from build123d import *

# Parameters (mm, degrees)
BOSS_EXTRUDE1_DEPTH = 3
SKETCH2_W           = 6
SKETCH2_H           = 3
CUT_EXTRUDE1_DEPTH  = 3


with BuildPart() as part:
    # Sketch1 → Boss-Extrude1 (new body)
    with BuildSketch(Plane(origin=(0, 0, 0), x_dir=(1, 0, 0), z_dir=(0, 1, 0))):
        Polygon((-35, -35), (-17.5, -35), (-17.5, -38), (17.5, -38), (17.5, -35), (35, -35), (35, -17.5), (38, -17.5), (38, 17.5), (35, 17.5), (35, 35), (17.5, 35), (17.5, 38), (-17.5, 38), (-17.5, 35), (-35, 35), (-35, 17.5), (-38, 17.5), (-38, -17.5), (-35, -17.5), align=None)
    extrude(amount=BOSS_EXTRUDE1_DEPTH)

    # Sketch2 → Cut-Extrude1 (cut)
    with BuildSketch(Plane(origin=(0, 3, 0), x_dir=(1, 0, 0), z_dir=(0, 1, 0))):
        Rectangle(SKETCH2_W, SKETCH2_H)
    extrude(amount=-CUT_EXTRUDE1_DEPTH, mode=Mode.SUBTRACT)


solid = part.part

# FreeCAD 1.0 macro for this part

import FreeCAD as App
import Part
import Sketcher
from FreeCAD import Vector

doc = App.newDocument("Part")
body = doc.addObject("PartDesign::Body", "Body")

# Sketch on XZ plane
sketch1 = body.newObject("Sketcher::SketchObject", "Sketch")
sketch1.AttachmentSupport = (doc.getObject("XZ_Plane"), [""])
sketch1.MapMode = "FlatFace"
sketch1.addGeometry(Part.LineSegment(Vector(-35, 35, 0), Vector(-17.5, 35, 0)), False)
sketch1.addGeometry(Part.LineSegment(Vector(-17.5, 35, 0), Vector(-17.5, 38, 0)), False)
sketch1.addGeometry(Part.LineSegment(Vector(-17.5, 38, 0), Vector(17.5, 38, 0)), False)
sketch1.addGeometry(Part.LineSegment(Vector(17.5, 38, 0), Vector(17.5, 35, 0)), False)
sketch1.addGeometry(Part.LineSegment(Vector(17.5, 35, 0), Vector(35, 35, 0)), False)
sketch1.addGeometry(Part.LineSegment(Vector(35, 35, 0), Vector(35, 17.5, 0)), False)
sketch1.addGeometry(Part.LineSegment(Vector(35, 17.5, 0), Vector(38, 17.5, 0)), False)
sketch1.addGeometry(Part.LineSegment(Vector(38, 17.5, 0), Vector(38, -17.5, 0)), False)
sketch1.addGeometry(Part.LineSegment(Vector(38, -17.5, 0), Vector(35, -17.5, 0)), False)
sketch1.addGeometry(Part.LineSegment(Vector(35, -17.5, 0), Vector(35, -35, 0)), False)
sketch1.addGeometry(Part.LineSegment(Vector(35, -35, 0), Vector(17.5, -35, 0)), False)
sketch1.addGeometry(Part.LineSegment(Vector(17.5, -35, 0), Vector(17.5, -38, 0)), False)
sketch1.addGeometry(Part.LineSegment(Vector(17.5, -38, 0), Vector(-17.5, -38, 0)), False)
sketch1.addGeometry(Part.LineSegment(Vector(-17.5, -38, 0), Vector(-17.5, -35, 0)), False)
sketch1.addGeometry(Part.LineSegment(Vector(-17.5, -35, 0), Vector(-35, -35, 0)), False)
sketch1.addGeometry(Part.LineSegment(Vector(-35, -35, 0), Vector(-35, -17.5, 0)), False)
sketch1.addGeometry(Part.LineSegment(Vector(-35, -17.5, 0), Vector(-38, -17.5, 0)), False)
sketch1.addGeometry(Part.LineSegment(Vector(-38, -17.5, 0), Vector(-38, 17.5, 0)), False)
sketch1.addGeometry(Part.LineSegment(Vector(-38, 17.5, 0), Vector(-35, 17.5, 0)), False)
sketch1.addGeometry(Part.LineSegment(Vector(-35, 17.5, 0), Vector(-35, 35, 0)), False)
sketch1.addConstraint(Sketcher.Constraint("Coincident", 0, 2, 1, 1))
sketch1.addConstraint(Sketcher.Constraint("Coincident", 1, 2, 2, 1))
sketch1.addConstraint(Sketcher.Constraint("Coincident", 2, 2, 3, 1))
sketch1.addConstraint(Sketcher.Constraint("Coincident", 3, 2, 4, 1))
sketch1.addConstraint(Sketcher.Constraint("Coincident", 4, 2, 5, 1))
sketch1.addConstraint(Sketcher.Constraint("Coincident", 5, 2, 6, 1))
sketch1.addConstraint(Sketcher.Constraint("Coincident", 6, 2, 7, 1))
sketch1.addConstraint(Sketcher.Constraint("Coincident", 7, 2, 8, 1))
sketch1.addConstraint(Sketcher.Constraint("Coincident", 8, 2, 9, 1))
sketch1.addConstraint(Sketcher.Constraint("Coincident", 9, 2, 10, 1))
sketch1.addConstraint(Sketcher.Constraint("Coincident", 10, 2, 11, 1))
sketch1.addConstraint(Sketcher.Constraint("Coincident", 11, 2, 12, 1))
sketch1.addConstraint(Sketcher.Constraint("Coincident", 12, 2, 13, 1))
sketch1.addConstraint(Sketcher.Constraint("Coincident", 13, 2, 14, 1))
sketch1.addConstraint(Sketcher.Constraint("Coincident", 14, 2, 15, 1))
sketch1.addConstraint(Sketcher.Constraint("Coincident", 15, 2, 16, 1))
sketch1.addConstraint(Sketcher.Constraint("Coincident", 16, 2, 17, 1))
sketch1.addConstraint(Sketcher.Constraint("Coincident", 17, 2, 18, 1))
sketch1.addConstraint(Sketcher.Constraint("Coincident", 18, 2, 19, 1))
sketch1.addConstraint(Sketcher.Constraint("Coincident", 19, 2, 0, 1))
sketch1.addConstraint(Sketcher.Constraint("Horizontal", 0))
sketch1.addConstraint(Sketcher.Constraint("Vertical", 1))
sketch1.addConstraint(Sketcher.Constraint("Horizontal", 2))
sketch1.addConstraint(Sketcher.Constraint("Vertical", 3))
sketch1.addConstraint(Sketcher.Constraint("Horizontal", 4))
sketch1.addConstraint(Sketcher.Constraint("Vertical", 5))
sketch1.addConstraint(Sketcher.Constraint("Horizontal", 6))
sketch1.addConstraint(Sketcher.Constraint("Vertical", 7))
sketch1.addConstraint(Sketcher.Constraint("Horizontal", 8))
sketch1.addConstraint(Sketcher.Constraint("Vertical", 9))
sketch1.addConstraint(Sketcher.Constraint("Horizontal", 10))
sketch1.addConstraint(Sketcher.Constraint("Vertical", 11))
sketch1.addConstraint(Sketcher.Constraint("Horizontal", 12))
sketch1.addConstraint(Sketcher.Constraint("Vertical", 13))
sketch1.addConstraint(Sketcher.Constraint("Horizontal", 14))
sketch1.addConstraint(Sketcher.Constraint("Vertical", 15))
sketch1.addConstraint(Sketcher.Constraint("Horizontal", 16))
sketch1.addConstraint(Sketcher.Constraint("Vertical", 17))
sketch1.addConstraint(Sketcher.Constraint("Horizontal", 18))
sketch1.addConstraint(Sketcher.Constraint("Vertical", 19))
sketch1.addConstraint(Sketcher.Constraint("Symmetric", 0, 2, 10, 2, -1, 1))
sketch1.addConstraint(Sketcher.Constraint("Symmetric", 2, 2, 12, 2, -1, 1))
sketch1.addConstraint(Sketcher.Constraint("Symmetric", 4, 2, 14, 2, -1, 1))
sketch1.addConstraint(Sketcher.Constraint("Symmetric", 6, 2, 16, 2, -1, 1))
sketch1.addConstraint(Sketcher.Constraint("Symmetric", 8, 2, 18, 2, -1, 1))
sketch1.addConstraint(Sketcher.Constraint("Symmetric", 0, 2, 3, 2, -2))
sketch1.addConstraint(Sketcher.Constraint("Symmetric", 8, 2, 15, 2, -2))
sketch1.addConstraint(Sketcher.Constraint("Equal", 18, 1))
sketch1.addConstraint(Sketcher.Constraint("Equal", 14, 5))
sketch1.addConstraint(Sketcher.Constraint("Equal", 12, 7))
sketch1.addConstraint(Sketcher.Constraint("DistanceX", 2, 1, 2, 2, 35.0))
sketch1.addConstraint(Sketcher.Constraint("DistanceX", 6, 1, 6, 2, 3.0))
sketch1.addConstraint(Sketcher.Constraint("DistanceX", 0, 1, 0, 2, 17.5))
pad1 = body.newObject("PartDesign::Pad", "Pad")
pad1.Profile = sketch1
pad1.Length = 3
pad1.Reversed = True

# Sketch on XZ plane
sketch2 = body.newObject("Sketcher::SketchObject", "Sketch001")
sketch2.AttachmentSupport = (doc.getObject("XZ_Plane"), [""])
sketch2.MapMode = "FlatFace"
sketch2.AttachmentOffset = App.Placement(Vector(0, 0, -3), App.Rotation())
sketch2.addGeometry(Part.LineSegment(Vector(-3, -1.5, 0), Vector(-3, 1.5, 0)), False)
sketch2.addGeometry(Part.LineSegment(Vector(-3, 1.5, 0), Vector(3, 1.5, 0)), False)
sketch2.addGeometry(Part.LineSegment(Vector(3, 1.5, 0), Vector(3, -1.5, 0)), False)
sketch2.addGeometry(Part.LineSegment(Vector(3, -1.5, 0), Vector(-3, -1.5, 0)), False)
sketch2.addConstraint(Sketcher.Constraint("Coincident", 0, 2, 1, 1))
sketch2.addConstraint(Sketcher.Constraint("Coincident", 1, 2, 2, 1))
sketch2.addConstraint(Sketcher.Constraint("Coincident", 2, 2, 3, 1))
sketch2.addConstraint(Sketcher.Constraint("Coincident", 3, 2, 0, 1))
sketch2.addConstraint(Sketcher.Constraint("Vertical", 0))
sketch2.addConstraint(Sketcher.Constraint("Horizontal", 1))
sketch2.addConstraint(Sketcher.Constraint("Vertical", 2))
sketch2.addConstraint(Sketcher.Constraint("Horizontal", 3))
sketch2.addConstraint(Sketcher.Constraint("Symmetric", 0, 2, 2, 2, -1, 1))
sketch2.addConstraint(Sketcher.Constraint("DistanceX", 1, 1, 1, 2, 6.0))
sketch2.addConstraint(Sketcher.Constraint("DistanceY", 0, 1, 0, 2, 3.0))
pocket1 = body.newObject("PartDesign::Pocket", "Pocket")
pocket1.Profile = sketch2
pocket1.Length = 3
pocket1.Reversed = True

doc.recompute()
